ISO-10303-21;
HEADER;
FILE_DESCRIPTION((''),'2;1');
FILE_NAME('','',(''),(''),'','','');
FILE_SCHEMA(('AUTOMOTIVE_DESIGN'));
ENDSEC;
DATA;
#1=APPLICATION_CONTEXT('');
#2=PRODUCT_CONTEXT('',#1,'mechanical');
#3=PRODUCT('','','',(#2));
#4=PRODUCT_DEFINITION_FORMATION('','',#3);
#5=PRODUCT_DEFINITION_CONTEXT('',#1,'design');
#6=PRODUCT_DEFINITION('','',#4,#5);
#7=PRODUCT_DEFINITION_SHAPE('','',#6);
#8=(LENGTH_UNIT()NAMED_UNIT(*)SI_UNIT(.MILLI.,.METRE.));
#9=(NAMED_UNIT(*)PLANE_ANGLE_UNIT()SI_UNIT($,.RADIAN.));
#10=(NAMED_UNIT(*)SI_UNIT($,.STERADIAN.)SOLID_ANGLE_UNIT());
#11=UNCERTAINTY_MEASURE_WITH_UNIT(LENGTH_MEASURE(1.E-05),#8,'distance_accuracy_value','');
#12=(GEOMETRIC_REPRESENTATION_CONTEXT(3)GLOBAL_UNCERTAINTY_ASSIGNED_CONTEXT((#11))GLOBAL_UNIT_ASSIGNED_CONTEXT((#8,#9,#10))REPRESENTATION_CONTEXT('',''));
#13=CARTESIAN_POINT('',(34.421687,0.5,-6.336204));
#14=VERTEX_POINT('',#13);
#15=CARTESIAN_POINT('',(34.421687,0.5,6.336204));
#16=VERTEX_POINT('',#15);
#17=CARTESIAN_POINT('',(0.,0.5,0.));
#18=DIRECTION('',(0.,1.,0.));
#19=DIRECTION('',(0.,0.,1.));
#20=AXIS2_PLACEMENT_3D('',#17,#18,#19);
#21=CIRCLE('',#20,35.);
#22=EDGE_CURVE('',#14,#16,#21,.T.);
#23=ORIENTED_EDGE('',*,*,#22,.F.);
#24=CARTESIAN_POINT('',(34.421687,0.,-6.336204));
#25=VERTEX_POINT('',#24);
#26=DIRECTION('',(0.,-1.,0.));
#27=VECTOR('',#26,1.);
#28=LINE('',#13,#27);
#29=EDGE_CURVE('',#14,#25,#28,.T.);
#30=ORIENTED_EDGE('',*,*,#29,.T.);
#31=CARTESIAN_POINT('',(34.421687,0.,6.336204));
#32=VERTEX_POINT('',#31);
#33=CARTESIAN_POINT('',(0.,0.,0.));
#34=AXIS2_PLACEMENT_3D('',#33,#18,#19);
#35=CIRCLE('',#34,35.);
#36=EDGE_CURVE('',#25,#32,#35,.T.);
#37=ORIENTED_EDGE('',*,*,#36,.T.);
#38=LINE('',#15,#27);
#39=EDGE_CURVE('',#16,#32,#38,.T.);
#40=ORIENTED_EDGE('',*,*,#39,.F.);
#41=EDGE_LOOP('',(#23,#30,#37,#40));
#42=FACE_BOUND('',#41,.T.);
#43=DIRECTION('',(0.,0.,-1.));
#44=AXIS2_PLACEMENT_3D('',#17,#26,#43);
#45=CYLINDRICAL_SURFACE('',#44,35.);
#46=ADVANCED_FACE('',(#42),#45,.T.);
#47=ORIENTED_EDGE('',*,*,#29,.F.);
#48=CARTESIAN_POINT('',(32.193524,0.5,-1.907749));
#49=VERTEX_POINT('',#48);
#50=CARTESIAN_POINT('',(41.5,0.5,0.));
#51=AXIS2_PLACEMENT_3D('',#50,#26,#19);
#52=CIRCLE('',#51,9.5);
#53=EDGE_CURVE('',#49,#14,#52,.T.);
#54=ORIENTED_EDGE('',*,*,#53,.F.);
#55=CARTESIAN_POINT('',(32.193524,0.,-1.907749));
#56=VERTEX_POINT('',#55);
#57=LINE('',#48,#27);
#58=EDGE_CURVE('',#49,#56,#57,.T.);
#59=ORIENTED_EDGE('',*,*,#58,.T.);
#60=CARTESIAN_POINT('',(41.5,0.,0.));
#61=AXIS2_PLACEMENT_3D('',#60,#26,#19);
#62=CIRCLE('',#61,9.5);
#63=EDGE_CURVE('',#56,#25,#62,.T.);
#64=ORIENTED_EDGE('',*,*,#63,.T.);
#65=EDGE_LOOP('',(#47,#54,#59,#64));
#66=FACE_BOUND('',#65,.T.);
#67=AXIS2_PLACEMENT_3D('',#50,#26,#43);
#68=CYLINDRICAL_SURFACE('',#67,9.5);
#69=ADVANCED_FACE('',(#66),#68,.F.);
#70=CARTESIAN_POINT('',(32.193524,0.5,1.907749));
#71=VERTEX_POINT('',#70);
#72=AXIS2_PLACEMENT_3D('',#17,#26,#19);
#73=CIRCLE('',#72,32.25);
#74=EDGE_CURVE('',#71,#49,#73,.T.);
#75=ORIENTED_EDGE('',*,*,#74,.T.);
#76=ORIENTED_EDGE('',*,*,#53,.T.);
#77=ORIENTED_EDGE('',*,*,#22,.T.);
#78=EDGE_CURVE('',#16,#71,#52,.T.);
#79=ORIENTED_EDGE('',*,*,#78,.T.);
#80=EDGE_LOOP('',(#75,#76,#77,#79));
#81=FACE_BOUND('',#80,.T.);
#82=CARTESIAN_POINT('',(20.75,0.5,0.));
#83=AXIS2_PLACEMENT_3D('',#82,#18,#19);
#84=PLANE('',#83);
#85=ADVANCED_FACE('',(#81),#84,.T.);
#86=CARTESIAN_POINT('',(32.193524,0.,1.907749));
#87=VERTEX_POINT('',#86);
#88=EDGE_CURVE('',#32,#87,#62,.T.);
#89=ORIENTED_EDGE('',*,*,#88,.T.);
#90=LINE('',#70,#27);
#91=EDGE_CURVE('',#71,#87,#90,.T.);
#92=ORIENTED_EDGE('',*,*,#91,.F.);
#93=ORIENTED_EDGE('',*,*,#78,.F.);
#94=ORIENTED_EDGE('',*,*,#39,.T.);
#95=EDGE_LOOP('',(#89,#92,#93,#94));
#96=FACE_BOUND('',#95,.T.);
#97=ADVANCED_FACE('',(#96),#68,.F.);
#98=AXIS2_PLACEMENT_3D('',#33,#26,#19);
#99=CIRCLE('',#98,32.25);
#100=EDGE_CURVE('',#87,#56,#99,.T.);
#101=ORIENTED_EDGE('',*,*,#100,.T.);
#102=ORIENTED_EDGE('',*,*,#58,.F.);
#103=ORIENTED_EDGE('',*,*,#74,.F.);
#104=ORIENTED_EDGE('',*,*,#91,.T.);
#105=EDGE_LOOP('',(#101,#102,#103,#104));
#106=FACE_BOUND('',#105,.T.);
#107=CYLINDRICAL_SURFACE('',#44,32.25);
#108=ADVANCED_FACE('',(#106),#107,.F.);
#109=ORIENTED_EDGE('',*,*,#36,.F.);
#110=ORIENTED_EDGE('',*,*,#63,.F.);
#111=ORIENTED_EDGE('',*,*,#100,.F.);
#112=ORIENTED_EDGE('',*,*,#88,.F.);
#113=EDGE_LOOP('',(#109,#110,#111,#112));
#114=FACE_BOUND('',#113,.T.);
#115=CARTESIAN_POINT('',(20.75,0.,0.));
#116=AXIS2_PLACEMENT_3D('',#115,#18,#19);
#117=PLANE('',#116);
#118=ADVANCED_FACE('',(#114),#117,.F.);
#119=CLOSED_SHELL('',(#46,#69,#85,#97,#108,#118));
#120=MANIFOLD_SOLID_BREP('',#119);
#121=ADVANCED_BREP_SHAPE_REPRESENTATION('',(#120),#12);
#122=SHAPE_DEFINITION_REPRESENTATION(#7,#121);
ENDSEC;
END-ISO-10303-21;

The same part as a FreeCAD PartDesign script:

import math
import FreeCAD as App
import Part
import Sketcher
Q = App.Units.Quantity

doc = App.newDocument("Part")
body = doc.addObject("PartDesign::Body", "Body")

# Sketch on XZ plane
sketch1 = doc.addObject("Sketcher::SketchObject", "Sketch")
body.addObject(sketch1)
sketch1.AttachmentSupport = (doc.XZ_Plane, [""])
sketch1.MapMode = "FlatFace"
sketch1.addGeometry([
    Part.ArcOfCircle(Part.Circle(App.Vector(0, 0, 0), App.Vector(0, 0, 1), 32.2), math.radians(3), math.radians(357)),
    Part.ArcOfCircle(Part.Circle(App.Vector(41.5, 0, 0), App.Vector(0, 0, 1), 9.5), math.radians(-168), math.radians(-138)),
    Part.ArcOfCircle(Part.Circle(App.Vector(0, 0, 0), App.Vector(0, 0, 1), 35), math.radians(10), math.radians(350)),
    Part.ArcOfCircle(Part.Circle(App.Vector(41.5, 0, 0), App.Vector(0, 0, 1), 9.5), math.radians(138), math.radians(168)),
], False)
sketch1.addConstraint([
    Sketcher.Constraint("Coincident", 0, 2, 1, 1),
    Sketcher.Constraint("Coincident", 1, 2, 2, 2),
    Sketcher.Constraint("Coincident", 2, 1, 3, 1),
    Sketcher.Constraint("Coincident", 3, 2, 0, 1),
    Sketcher.Constraint("Coincident", 0, 3, -1, 1),
    Sketcher.Constraint("Coincident", 2, 3, -1, 1),
    Sketcher.Constraint("Coincident", 3, 3, 1, 3),
    Sketcher.Constraint("Equal", 1, 3),
    Sketcher.Constraint("PointOnObject", 1, 3, -1),
    Sketcher.Constraint("Radius", 2, Q("35 mm")),
    Sketcher.Constraint("Radius", 1, Q("9.5 mm")),
    Sketcher.Constraint("Radius", 0, Q("32.25 mm")),
    Sketcher.Constraint("DistanceX", -1, 1, 1, 3, Q("41.5 mm")),
])
pad1 = doc.addObject("PartDesign::Pad", "Pad")
body.addObject(pad1)
pad1.Profile = sketch1
pad1.Length = 0.5
pad1.Reversed = True

doc.recompute()
